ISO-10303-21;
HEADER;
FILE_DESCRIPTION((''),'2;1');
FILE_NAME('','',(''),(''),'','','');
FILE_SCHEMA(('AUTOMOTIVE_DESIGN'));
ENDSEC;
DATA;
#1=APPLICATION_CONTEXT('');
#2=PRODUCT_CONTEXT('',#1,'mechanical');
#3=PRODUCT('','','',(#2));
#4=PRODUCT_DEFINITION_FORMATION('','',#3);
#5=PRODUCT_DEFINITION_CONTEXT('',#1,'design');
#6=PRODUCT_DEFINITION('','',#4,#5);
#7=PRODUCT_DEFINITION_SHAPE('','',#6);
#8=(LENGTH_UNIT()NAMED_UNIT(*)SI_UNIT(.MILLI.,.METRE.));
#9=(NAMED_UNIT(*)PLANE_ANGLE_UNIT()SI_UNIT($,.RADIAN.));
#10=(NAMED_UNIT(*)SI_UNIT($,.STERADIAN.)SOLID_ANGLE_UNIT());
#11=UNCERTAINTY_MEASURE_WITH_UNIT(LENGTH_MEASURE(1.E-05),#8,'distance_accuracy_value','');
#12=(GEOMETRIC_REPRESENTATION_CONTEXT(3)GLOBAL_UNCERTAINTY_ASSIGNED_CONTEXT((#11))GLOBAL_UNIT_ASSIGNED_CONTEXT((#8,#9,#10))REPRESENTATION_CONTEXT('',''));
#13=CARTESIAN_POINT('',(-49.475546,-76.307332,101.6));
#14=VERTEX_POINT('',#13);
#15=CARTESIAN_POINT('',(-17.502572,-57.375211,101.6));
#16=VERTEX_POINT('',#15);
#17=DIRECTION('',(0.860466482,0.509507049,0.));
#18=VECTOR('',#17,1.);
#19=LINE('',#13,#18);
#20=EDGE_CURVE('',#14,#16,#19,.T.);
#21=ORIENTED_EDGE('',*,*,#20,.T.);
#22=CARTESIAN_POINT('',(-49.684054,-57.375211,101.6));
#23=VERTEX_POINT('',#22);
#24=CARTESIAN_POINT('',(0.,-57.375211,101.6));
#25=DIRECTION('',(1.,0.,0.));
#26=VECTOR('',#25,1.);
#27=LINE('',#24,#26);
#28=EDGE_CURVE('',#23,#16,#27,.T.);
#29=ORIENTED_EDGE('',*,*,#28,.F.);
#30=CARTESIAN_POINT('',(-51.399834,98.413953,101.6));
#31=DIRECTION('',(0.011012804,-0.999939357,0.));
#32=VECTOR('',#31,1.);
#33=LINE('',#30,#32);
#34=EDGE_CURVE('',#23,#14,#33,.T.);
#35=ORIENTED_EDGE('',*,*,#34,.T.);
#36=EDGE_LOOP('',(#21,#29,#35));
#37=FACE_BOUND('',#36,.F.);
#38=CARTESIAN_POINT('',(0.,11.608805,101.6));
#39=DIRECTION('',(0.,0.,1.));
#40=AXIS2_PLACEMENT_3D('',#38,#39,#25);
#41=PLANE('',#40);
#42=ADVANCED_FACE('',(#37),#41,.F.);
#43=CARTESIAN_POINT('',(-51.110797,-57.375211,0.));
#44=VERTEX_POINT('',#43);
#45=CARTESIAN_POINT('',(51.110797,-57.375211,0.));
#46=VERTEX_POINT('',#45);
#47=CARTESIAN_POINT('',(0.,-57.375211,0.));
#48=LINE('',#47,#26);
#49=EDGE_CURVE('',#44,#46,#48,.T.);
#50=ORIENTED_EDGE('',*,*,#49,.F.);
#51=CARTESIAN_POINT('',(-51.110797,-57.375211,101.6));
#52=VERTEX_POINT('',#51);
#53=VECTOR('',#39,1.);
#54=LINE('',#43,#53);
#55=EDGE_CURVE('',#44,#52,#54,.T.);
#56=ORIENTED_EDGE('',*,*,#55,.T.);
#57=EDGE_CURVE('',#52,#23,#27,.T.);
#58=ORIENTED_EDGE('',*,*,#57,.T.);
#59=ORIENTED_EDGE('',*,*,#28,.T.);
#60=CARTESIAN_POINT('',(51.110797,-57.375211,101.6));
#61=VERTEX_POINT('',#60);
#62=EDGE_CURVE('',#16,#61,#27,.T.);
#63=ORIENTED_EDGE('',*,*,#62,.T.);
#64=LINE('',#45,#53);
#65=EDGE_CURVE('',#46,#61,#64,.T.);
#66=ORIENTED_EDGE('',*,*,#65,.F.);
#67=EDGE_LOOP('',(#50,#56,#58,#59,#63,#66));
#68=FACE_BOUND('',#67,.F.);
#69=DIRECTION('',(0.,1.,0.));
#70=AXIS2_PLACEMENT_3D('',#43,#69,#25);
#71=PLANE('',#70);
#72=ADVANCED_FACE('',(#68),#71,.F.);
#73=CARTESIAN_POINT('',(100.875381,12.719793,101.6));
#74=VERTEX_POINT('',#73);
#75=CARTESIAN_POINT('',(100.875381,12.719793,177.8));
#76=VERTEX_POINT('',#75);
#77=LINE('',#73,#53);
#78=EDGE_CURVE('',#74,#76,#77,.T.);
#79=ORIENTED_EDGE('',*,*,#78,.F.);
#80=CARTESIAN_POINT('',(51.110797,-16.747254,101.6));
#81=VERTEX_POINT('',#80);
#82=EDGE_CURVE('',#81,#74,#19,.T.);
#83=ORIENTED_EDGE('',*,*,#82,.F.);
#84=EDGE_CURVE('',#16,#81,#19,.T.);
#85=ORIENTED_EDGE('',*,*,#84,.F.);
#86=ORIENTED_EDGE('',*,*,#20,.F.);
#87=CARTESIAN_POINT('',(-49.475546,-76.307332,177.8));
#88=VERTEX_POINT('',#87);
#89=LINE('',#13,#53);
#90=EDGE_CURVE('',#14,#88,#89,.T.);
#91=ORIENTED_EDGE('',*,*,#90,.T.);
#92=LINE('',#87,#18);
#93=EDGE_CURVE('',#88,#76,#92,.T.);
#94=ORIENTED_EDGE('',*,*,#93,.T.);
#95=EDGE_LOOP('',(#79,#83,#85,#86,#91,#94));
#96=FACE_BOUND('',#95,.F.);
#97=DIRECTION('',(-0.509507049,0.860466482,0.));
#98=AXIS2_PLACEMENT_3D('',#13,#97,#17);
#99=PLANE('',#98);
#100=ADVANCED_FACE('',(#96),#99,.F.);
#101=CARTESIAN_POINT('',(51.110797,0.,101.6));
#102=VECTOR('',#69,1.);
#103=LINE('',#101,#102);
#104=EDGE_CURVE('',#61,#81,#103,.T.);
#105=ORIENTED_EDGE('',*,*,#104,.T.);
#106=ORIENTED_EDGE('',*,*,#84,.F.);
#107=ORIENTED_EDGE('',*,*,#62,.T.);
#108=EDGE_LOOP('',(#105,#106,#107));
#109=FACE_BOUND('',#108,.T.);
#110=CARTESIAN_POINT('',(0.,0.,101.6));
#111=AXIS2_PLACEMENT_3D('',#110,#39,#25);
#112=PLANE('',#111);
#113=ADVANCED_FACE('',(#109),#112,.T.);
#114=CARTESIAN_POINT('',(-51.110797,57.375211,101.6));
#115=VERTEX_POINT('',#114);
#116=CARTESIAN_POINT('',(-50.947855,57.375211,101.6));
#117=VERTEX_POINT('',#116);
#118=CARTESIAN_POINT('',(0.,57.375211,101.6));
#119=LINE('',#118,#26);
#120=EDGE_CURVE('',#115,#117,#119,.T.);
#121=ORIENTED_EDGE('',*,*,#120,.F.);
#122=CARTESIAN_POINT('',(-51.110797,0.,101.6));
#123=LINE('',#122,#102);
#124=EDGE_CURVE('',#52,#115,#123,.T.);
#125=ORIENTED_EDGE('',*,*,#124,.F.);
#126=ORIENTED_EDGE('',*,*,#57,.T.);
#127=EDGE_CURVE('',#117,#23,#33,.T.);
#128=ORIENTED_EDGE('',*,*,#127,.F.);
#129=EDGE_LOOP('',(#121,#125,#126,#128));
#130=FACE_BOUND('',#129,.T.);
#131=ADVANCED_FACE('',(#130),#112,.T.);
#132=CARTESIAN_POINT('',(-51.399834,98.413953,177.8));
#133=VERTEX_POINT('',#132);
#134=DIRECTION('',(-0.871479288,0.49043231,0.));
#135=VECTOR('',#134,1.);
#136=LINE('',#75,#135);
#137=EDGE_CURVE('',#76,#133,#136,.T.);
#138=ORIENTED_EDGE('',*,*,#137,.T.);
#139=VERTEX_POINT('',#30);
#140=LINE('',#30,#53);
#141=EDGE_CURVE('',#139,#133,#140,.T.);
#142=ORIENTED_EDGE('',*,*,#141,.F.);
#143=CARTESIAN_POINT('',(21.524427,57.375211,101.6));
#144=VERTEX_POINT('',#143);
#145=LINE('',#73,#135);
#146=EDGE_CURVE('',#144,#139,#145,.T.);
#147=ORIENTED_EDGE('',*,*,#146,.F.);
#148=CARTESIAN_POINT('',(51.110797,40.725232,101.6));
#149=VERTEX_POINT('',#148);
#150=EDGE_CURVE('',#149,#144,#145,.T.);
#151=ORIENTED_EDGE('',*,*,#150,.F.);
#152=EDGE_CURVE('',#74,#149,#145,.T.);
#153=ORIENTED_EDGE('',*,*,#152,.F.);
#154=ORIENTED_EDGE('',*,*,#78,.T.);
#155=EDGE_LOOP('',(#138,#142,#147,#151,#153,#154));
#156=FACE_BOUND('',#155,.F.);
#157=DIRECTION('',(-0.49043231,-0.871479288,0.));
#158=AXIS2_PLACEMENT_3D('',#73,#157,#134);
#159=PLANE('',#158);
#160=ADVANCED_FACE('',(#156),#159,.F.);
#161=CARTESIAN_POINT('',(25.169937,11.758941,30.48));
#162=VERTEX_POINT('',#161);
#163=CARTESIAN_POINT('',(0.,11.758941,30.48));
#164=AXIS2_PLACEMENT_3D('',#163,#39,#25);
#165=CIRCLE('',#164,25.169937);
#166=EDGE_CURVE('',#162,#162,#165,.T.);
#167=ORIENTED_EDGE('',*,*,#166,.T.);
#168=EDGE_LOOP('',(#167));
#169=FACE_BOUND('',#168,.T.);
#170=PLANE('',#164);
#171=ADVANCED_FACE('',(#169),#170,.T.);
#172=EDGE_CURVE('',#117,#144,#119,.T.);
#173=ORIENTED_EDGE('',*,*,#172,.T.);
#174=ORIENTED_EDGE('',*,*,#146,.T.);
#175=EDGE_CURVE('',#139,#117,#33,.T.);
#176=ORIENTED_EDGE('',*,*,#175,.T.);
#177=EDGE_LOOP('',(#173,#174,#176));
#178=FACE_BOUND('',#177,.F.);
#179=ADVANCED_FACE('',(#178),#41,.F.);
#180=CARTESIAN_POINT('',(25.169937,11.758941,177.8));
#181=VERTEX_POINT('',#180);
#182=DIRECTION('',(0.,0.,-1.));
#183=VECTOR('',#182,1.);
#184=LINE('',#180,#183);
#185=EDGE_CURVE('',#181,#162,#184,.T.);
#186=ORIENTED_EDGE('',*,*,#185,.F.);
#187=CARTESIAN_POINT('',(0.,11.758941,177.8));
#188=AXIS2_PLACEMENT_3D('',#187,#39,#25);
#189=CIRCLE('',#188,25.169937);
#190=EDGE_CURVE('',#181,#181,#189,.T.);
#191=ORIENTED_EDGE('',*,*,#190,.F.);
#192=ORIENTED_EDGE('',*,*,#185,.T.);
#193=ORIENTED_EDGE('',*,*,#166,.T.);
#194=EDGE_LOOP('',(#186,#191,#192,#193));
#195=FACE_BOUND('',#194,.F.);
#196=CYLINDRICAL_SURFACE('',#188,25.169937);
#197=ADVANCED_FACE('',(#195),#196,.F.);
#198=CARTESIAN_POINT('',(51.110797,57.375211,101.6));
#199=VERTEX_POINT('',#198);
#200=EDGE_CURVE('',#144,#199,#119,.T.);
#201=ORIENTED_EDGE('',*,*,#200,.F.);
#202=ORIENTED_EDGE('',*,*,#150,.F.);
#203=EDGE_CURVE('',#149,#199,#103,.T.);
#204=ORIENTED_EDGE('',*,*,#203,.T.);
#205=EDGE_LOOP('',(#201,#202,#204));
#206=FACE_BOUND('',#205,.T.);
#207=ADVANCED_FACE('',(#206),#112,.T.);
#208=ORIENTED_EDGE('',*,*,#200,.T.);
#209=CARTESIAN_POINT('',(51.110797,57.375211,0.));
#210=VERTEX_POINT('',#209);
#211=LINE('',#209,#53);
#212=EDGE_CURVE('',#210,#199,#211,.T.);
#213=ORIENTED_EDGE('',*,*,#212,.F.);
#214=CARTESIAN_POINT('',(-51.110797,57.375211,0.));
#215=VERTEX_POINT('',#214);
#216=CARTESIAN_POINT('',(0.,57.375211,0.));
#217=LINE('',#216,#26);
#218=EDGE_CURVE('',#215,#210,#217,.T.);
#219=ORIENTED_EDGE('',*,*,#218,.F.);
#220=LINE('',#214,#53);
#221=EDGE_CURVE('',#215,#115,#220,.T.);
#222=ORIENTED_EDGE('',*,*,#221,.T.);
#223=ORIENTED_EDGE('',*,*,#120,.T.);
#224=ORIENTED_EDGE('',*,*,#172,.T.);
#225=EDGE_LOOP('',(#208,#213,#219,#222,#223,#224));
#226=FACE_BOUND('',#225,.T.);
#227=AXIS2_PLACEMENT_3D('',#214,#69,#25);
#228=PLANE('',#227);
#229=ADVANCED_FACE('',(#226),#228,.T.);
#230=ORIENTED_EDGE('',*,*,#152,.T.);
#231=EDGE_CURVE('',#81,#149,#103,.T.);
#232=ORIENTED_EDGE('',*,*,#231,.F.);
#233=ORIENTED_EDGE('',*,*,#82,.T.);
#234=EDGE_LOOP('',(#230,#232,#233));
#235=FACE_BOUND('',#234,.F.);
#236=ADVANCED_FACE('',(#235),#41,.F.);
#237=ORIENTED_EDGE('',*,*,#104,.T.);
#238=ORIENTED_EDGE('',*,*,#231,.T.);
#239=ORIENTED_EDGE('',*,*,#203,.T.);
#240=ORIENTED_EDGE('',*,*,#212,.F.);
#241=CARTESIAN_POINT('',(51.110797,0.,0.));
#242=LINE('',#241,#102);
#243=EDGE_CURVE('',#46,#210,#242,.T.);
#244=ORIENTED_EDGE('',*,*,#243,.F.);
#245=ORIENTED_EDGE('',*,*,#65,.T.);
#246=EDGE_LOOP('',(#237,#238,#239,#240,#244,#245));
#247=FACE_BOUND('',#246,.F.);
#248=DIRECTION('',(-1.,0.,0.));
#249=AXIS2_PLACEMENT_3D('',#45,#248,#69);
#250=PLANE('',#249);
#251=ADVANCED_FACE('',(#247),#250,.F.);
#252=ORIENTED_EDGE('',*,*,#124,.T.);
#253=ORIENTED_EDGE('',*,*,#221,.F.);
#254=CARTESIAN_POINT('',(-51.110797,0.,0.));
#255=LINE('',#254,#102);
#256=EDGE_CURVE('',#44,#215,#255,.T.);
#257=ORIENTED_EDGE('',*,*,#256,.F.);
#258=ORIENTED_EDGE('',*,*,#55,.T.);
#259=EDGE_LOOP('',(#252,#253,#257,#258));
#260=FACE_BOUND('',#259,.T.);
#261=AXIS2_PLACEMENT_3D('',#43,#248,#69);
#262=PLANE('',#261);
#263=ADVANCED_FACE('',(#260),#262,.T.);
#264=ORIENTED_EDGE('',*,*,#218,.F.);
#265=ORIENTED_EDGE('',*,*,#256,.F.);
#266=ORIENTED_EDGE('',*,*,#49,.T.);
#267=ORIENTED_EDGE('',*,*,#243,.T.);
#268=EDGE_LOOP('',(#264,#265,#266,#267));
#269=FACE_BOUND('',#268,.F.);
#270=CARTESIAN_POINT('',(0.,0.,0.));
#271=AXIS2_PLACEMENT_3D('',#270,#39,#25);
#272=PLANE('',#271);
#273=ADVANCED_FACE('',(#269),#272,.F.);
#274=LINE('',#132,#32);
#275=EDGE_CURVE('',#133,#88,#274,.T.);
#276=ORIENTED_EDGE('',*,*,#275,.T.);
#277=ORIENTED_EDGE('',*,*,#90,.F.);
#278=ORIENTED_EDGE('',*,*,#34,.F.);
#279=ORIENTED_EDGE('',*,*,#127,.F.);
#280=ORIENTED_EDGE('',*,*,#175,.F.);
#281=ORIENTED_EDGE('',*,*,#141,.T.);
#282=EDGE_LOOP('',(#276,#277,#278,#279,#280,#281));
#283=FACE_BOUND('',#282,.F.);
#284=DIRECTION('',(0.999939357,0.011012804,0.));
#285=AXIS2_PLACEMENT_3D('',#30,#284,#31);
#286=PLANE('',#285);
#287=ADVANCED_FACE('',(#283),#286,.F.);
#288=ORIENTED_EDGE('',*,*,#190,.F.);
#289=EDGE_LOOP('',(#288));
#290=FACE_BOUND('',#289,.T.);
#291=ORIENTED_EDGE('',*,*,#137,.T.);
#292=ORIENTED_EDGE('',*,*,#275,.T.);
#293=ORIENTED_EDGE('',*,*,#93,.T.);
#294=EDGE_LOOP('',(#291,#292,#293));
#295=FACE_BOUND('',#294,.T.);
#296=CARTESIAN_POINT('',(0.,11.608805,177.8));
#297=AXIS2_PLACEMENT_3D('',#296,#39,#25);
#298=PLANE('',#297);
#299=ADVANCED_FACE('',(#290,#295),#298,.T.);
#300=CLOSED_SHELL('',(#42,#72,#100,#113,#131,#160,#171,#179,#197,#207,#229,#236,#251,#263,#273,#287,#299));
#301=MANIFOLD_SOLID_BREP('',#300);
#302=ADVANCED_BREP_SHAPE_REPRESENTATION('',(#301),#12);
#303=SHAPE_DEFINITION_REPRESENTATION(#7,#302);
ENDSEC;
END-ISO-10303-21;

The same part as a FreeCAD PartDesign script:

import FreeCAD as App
import Part
import Sketcher

V = App.Vector
Q = App.Units.Quantity


def add_polygon(sketch, points):
    """Adds a closed chain of lines whose ends are joined by coincident constraints."""
    first, n = sketch.GeometryCount, len(points)
    for a, b in zip(points, points[1:] + points[:1]):
        sketch.addGeometry(Part.LineSegment(App.Vector(*a, 0), App.Vector(*b, 0)), False)
    for i in range(n):
        sketch.addConstraint(Sketcher.Constraint("Coincident", first + i, 2, first + (i + 1) % n, 1))

doc = App.newDocument("Part")
body = doc.addObject("PartDesign::Body", "Body")

# Sketch on XY plane
sketch1 = body.newObject("Sketcher::SketchObject", "Sketch")
sketch1.AttachmentSupport = (doc.getObject("XY_Plane"), [""])
sketch1.MapMode = "FlatFace"
add_polygon(sketch1, [(-51, 57), (-51, -57), (51, -57), (51, 57)])  # lines 0-3
sketch1.addConstraint(Sketcher.Constraint("Vertical", 0))
sketch1.addConstraint(Sketcher.Constraint("Horizontal", 1))
sketch1.addConstraint(Sketcher.Constraint("Vertical", 2))
sketch1.addConstraint(Sketcher.Constraint("Horizontal", 3))
sketch1.addConstraint(Sketcher.Constraint("Symmetric", 0, 2, 2, 2, -1, 1))
sketch1.addConstraint(Sketcher.Constraint("DistanceY", 0, 2, 0, 1, Q("114.750422 mm")))
sketch1.addConstraint(Sketcher.Constraint("DistanceX", 1, 1, 1, 2, Q("102.221594 mm")))
pad1 = body.newObject("PartDesign::Pad", "Pad")
pad1.Profile = sketch1
pad1.Length = Q("4 in")

# Sketch on XY plane
sketch2 = body.newObject("Sketcher::SketchObject", "Sketch001")
sketch2.AttachmentSupport = (doc.getObject("XY_Plane"), [""])
sketch2.MapMode = "FlatFace"
sketch2.AttachmentOffset = App.Placement(V(0, 0, 4 * 25.4), App.Rotation())
add_polygon(sketch2, [(-49, -76), (101, 13), (-51, 98)])  # lines 0-2
sketch2.addConstraint(Sketcher.Constraint("Equal", 0, 1))
sketch2.addConstraint(Sketcher.Constraint("Equal", 1, 2))
sketch2.addConstraint(Sketcher.Constraint("Distance", 0, Q("174.731881 mm")))
sketch2.addConstraint(Sketcher.Constraint("DistanceX", -1, 1, 0, 2, Q("100.875381 mm")))
sketch2.addConstraint(Sketcher.Constraint("DistanceY", 0, 2, 1, 2, Q("85.69416 mm")))
sketch2.addConstraint(Sketcher.Constraint("DistanceY", -1, 1, 0, 2, Q("12.719793 mm")))
pad2 = body.newObject("PartDesign::Pad", "Pad001")
pad2.Profile = sketch2
pad2.Length = Q("3 in")

# Sketch on XY plane
sketch3 = body.newObject("Sketcher::SketchObject", "Sketch002")
sketch3.AttachmentSupport = (doc.getObject("XY_Plane"), [""])
sketch3.MapMode = "FlatFace"
sketch3.AttachmentOffset = App.Placement(V(0, 0, 7 * 25.4), App.Rotation())
sketch3.addGeometry(Part.Circle(V(0, 12, 0), V(0, 0, 1), 25), False)
sketch3.addConstraint(Sketcher.Constraint("PointOnObject", 0, 3, -2))
sketch3.addConstraint(Sketcher.Constraint("Diameter", 0, Q("50.339874 mm")))
sketch3.addConstraint(Sketcher.Constraint("DistanceY", -1, 1, 0, 3, Q("11.758941 mm")))
pocket1 = body.newObject("PartDesign::Pocket", "Pocket")
pocket1.Profile = sketch3
pocket1.Length = Q("5.8 in")

doc.recompute()
